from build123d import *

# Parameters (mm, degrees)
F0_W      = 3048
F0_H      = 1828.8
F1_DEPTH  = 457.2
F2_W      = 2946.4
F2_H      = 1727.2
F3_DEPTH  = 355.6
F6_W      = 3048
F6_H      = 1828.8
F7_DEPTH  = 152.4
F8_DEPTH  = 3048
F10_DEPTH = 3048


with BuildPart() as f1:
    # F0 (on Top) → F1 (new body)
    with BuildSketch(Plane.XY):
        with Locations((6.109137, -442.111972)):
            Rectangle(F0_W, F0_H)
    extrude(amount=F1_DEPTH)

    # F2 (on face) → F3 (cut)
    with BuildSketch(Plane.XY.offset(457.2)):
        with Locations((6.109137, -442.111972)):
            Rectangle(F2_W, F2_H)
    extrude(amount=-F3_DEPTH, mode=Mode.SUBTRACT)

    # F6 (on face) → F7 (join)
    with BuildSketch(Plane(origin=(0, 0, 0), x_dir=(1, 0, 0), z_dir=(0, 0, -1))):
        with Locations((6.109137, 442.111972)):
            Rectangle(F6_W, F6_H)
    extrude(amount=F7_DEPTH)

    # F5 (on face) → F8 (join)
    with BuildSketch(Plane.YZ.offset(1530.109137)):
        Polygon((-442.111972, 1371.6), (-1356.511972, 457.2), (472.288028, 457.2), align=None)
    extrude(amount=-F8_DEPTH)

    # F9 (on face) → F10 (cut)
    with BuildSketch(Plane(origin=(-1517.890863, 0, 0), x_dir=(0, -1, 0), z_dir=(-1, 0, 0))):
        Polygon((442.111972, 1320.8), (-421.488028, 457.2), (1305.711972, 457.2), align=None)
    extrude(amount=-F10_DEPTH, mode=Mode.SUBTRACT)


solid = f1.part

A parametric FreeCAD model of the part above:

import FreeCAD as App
import Part
import Sketcher

V = App.Vector
Q = App.Units.Quantity

doc = App.newDocument("Part")
body = doc.addObject("PartDesign::Body", "Body")

# Sketch on XY plane
sketch1 = body.newObject("Sketcher::SketchObject", "Sketch")
sketch1.AttachmentSupport = (doc.getObject("XY_Plane"), [""])
sketch1.MapMode = "FlatFace"
sketch1.addGeometry([
    Part.LineSegment(V(-1518, 472, 0), V(-1518, -1357, 0)),
    Part.LineSegment(V(-1518, -1357, 0), V(1530, -1357, 0)),
    Part.LineSegment(V(1530, -1357, 0), V(1530, 472, 0)),
    Part.LineSegment(V(1530, 472, 0), V(-1518, 472, 0)),
], False)
sketch1.addConstraint([
    Sketcher.Constraint("Coincident", 0, 2, 1, 1),
    Sketcher.Constraint("Coincident", 1, 2, 2, 1),
    Sketcher.Constraint("Coincident", 2, 2, 3, 1),
    Sketcher.Constraint("Coincident", 3, 2, 0, 1),
    Sketcher.Constraint("Vertical", 0),
    Sketcher.Constraint("Horizontal", 1),
    Sketcher.Constraint("Vertical", 2),
    Sketcher.Constraint("Horizontal", 3),
    Sketcher.Constraint("DistanceX", 1, 1, 1, 2, Q("120 in")),
    Sketcher.Constraint("DistanceY", 0, 2, 0, 1, Q("72 in")),
    Sketcher.Constraint("DistanceY", 0, 2, -1, 1, Q("1356.511972 mm")),
    Sketcher.Constraint("DistanceX", 0, 2, -1, 1, Q("1517.890863 mm")),
])
pad1 = body.newObject("PartDesign::Pad", "Pad")
pad1.Profile = sketch1
pad1.Length = Q("18 in")

# Sketch on XY plane
sketch2 = body.newObject("Sketcher::SketchObject", "Sketch001")
sketch2.AttachmentSupport = (doc.getObject("XY_Plane"), [""])
sketch2.MapMode = "FlatFace"
sketch2.AttachmentOffset = App.Placement(V(0, 0, 18 * 25.4), App.Rotation())
sketch2.addGeometry([
    Part.LineSegment(V(-1467, 421, 0), V(-1467, -1306, 0)),
    Part.LineSegment(V(-1467, -1306, 0), V(1479, -1306, 0)),
    Part.LineSegment(V(1479, -1306, 0), V(1479, 421, 0)),
    Part.LineSegment(V(1479, 421, 0), V(-1467, 421, 0)),
], False)
sketch2.addConstraint([
    Sketcher.Constraint("Coincident", 0, 2, 1, 1),
    Sketcher.Constraint("Coincident", 1, 2, 2, 1),
    Sketcher.Constraint("Coincident", 2, 2, 3, 1),
    Sketcher.Constraint("Coincident", 3, 2, 0, 1),
    Sketcher.Constraint("Vertical", 0),
    Sketcher.Constraint("Horizontal", 1),
    Sketcher.Constraint("Vertical", 2),
    Sketcher.Constraint("Horizontal", 3),
    Sketcher.Constraint("DistanceX", 1, 1, 1, 2, Q("116 in")),
    Sketcher.Constraint("DistanceY", 0, 2, 0, 1, Q("68 in")),
    Sketcher.Constraint("DistanceY", 0, 2, -1, 1, Q("1305.711972 mm")),
    Sketcher.Constraint("DistanceX", 0, 2, -1, 1, Q("1467.090863 mm")),
])
pocket1 = body.newObject("PartDesign::Pocket", "Pocket")
pocket1.Profile = sketch2
pocket1.Length = Q("14 in")

# Sketch on XY plane
sketch3 = body.newObject("Sketcher::SketchObject", "Sketch002")
sketch3.AttachmentSupport = (doc.getObject("XY_Plane"), [""])
sketch3.MapMode = "FlatFace"
sketch3.addGeometry([
    Part.LineSegment(V(-1518, -1357, 0), V(-1518, 472, 0)),
    Part.LineSegment(V(-1518, 472, 0), V(1530, 472, 0)),
    Part.LineSegment(V(1530, 472, 0), V(1530, -1357, 0)),
    Part.LineSegment(V(1530, -1357, 0), V(-1518, -1357, 0)),
], False)
sketch3.addConstraint([
    Sketcher.Constraint("Coincident", 0, 2, 1, 1),
    Sketcher.Constraint("Coincident", 1, 2, 2, 1),
    Sketcher.Constraint("Coincident", 2, 2, 3, 1),
    Sketcher.Constraint("Coincident", 3, 2, 0, 1),
    Sketcher.Constraint("Vertical", 0),
    Sketcher.Constraint("Horizontal", 1),
    Sketcher.Constraint("Vertical", 2),
    Sketcher.Constraint("Horizontal", 3),
    Sketcher.Constraint("DistanceX", 1, 1, 1, 2, Q("120 in")),
    Sketcher.Constraint("DistanceY", 0, 1, 0, 2, Q("72 in")),
    Sketcher.Constraint("DistanceY", -1, 1, 0, 2, Q("472.288028 mm")),
    Sketcher.Constraint("DistanceX", 0, 2, -1, 1, Q("1517.890863 mm")),
])
pad2 = body.newObject("PartDesign::Pad", "Pad001")
pad2.Profile = sketch3
pad2.Length = Q("6 in")
pad2.Reversed = True

# Sketch on YZ plane
sketch4 = body.newObject("Sketcher::SketchObject", "Sketch003")
sketch4.AttachmentSupport = (doc.getObject("YZ_Plane"), [""])
sketch4.MapMode = "FlatFace"
sketch4.AttachmentOffset = App.Placement(V(0, 0, 1530.109137), App.Rotation())
sketch4.addGeometry([
    Part.LineSegment(V(-442, 1372, 0), V(-1357, 457, 0)),
    Part.LineSegment(V(-1357, 457, 0), V(472, 457, 0)),
    Part.LineSegment(V(472, 457, 0), V(-442, 1372, 0)),
], False)
sketch4.addConstraint([
    Sketcher.Constraint("Coincident", 0, 2, 1, 1),
    Sketcher.Constraint("Coincident", 1, 2, 2, 1),
    Sketcher.Constraint("Coincident", 2, 2, 0, 1),
    Sketcher.Constraint("Horizontal", 1),
    Sketcher.Constraint("Perpendicular", 0, 2),
    Sketcher.Constraint("Equal", 0, 2),
    Sketcher.Constraint("DistanceX", 1, 1, 1, 2, Q("72 in")),
    Sketcher.Constraint("DistanceY", -1, 1, 0, 2, Q("18 in")),
    Sketcher.Constraint("DistanceX", 0, 2, -1, 1, Q("1356.511972 mm")),
])
pad3 = body.newObject("PartDesign::Pad", "Pad002")
pad3.Profile = sketch4
pad3.Length = Q("120 in")
pad3.Reversed = True

# Sketch on YZ plane
sketch5 = body.newObject("Sketcher::SketchObject", "Sketch004")
sketch5.AttachmentSupport = (doc.getObject("YZ_Plane"), [""])
sketch5.MapMode = "FlatFace"
sketch5.AttachmentOffset = App.Placement(V(0, 0, -1517.890863), App.Rotation())
sketch5.addGeometry([
    Part.LineSegment(V(-442, 1321, 0), V(421, 457, 0)),
    Part.LineSegment(V(421, 457, 0), V(-1306, 457, 0)),
    Part.LineSegment(V(-1306, 457, 0), V(-442, 1321, 0)),
], False)
sketch5.addConstraint([
    Sketcher.Constraint("Coincident", 0, 2, 1, 1),
    Sketcher.Constraint("Coincident", 1, 2, 2, 1),
    Sketcher.Constraint("Coincident", 2, 2, 0, 1),
    Sketcher.Constraint("Horizontal", 1),
    Sketcher.Constraint("Perpendicular", 0, 2),
    Sketcher.Constraint("Equal", 0, 2),
    Sketcher.Constraint("DistanceX", 1, 2, 1, 1, Q("68 in")),
    Sketcher.Constraint("DistanceY", -1, 1, 0, 2, Q("18 in")),
    Sketcher.Constraint("DistanceX", -1, 1, 0, 2, Q("421.488028 mm")),
])
pocket2 = body.newObject("PartDesign::Pocket", "Pocket001")
pocket2.Profile = sketch5
pocket2.Length = Q("120 in")
pocket2.Reversed = True

doc.recompute()
